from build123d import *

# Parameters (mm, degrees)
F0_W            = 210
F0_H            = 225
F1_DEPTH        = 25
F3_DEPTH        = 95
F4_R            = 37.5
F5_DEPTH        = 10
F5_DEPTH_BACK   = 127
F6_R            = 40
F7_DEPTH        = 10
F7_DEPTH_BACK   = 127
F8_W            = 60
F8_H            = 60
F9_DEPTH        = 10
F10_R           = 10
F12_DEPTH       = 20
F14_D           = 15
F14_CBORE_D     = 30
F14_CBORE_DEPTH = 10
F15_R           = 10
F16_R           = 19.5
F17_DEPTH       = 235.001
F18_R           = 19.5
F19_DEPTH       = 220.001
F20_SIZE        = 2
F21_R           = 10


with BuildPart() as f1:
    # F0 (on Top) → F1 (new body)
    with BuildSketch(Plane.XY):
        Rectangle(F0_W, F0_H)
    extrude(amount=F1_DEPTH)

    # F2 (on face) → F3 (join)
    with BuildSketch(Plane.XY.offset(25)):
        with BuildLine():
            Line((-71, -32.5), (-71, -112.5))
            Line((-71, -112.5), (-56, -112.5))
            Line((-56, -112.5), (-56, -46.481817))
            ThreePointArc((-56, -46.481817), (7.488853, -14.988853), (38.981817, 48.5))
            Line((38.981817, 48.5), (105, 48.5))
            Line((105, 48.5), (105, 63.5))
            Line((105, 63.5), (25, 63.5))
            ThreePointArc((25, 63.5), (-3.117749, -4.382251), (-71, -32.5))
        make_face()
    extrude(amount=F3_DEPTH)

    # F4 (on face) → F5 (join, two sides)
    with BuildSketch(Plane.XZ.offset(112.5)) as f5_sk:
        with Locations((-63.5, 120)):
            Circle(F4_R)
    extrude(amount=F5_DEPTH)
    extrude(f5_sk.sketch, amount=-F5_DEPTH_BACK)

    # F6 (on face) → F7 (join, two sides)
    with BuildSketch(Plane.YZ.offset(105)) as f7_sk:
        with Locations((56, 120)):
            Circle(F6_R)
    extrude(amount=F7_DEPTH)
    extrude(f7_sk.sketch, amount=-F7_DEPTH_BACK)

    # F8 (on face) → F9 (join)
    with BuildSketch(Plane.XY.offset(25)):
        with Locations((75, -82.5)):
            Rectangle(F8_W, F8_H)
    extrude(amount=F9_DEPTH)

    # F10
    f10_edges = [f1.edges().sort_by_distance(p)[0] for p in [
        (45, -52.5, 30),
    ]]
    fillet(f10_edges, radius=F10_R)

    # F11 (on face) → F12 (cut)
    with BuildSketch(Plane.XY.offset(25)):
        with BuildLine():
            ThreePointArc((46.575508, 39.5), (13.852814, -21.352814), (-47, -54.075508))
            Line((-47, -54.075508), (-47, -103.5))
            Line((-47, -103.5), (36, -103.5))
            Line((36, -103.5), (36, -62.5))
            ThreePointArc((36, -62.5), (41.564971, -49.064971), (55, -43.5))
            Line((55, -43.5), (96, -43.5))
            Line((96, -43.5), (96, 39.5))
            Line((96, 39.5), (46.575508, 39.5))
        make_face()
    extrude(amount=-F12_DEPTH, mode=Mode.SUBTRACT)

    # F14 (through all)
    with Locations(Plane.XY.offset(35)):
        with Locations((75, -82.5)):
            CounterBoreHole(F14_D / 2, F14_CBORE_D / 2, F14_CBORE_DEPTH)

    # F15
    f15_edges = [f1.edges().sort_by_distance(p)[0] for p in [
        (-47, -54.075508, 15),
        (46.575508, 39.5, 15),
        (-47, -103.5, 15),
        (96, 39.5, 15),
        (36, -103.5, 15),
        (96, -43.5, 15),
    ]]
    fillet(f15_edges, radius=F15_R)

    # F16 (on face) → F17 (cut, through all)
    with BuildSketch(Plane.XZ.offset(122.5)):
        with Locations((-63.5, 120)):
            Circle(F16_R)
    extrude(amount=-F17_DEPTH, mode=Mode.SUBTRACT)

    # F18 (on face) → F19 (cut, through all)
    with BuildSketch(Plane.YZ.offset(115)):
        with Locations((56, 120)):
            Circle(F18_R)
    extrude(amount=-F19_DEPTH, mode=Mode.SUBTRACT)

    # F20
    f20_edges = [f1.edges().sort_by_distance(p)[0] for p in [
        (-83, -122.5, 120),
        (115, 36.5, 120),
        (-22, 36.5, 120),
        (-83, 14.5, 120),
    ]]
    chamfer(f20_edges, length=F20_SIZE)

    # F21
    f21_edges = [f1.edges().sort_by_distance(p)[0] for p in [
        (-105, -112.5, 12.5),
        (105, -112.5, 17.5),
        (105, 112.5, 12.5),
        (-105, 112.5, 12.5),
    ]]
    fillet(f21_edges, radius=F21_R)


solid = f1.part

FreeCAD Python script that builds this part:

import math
import FreeCAD as App
import Part
import Sketcher
from FreeCAD import Vector
Q = App.Units.Quantity


def edges_at(feature, points):
    """Names of the edges that pass closest to the given points."""
    edges = feature.Shape.Edges
    near = lambda p: min(range(len(edges)), key=lambda i: edges[i].distToShape(Part.Vertex(*p))[0])
    return sorted({f"Edge{near(p) + 1}" for p in points})

doc = App.newDocument("Part")
params = doc.addObject("Spreadsheet::Sheet", "Params")
for row, (alias, value) in enumerate([
    ("sketch1_width", "210 mm"),
    ("sketch1_height", "225 mm"),
    ("pad1_length", "25 mm"),
    ("sketch2_radius", "111 mm"),
    ("sketch2_radius2", "96 mm"),
    ("sketch2_width", "15 mm"),
    ("sketch2_width2", "80 mm"),
    ("pad2_length", "95 mm"),
    ("sketch3_diameter", "75 mm"),
    ("pad3_length", "10 mm"),
    ("pad3_length2", "127 mm"),
    ("sketch4_diameter", "80 mm"),
    ("pad4_length", "10 mm"),
    ("pad4_length2", "127 mm"),
    ("sketch5_width", "60 mm"),
    ("pad5_length", "10 mm"),
    ("fillet_radius", "10 mm"),
    ("sketch6_radius", "120 mm"),
    ("sketch6_radius2", "18.999999 mm"),
    ("sketch6_width", "83 mm"),
    ("sketch6_width2", "41 mm"),
    ("pocket1_length", "20 mm"),
    ("sketch7_diameter", "15 mm"),
    ("hole_diameter", "15 mm"),
    ("hole_cbore_diameter", "30 mm"),
    ("hole_cbore_depth", "10 mm"),
    ("fillet2_radius", "10 mm"),
    ("sketch8_diameter", "39 mm"),
    ("sketch9_diameter", "39 mm"),
    ("chamfer_size", "2 mm"),
    ("fillet3_radius", "10 mm"),
], start=1):
    params.set(f"A{row}", alias)
    params.set(f"B{row}", "=" + value)
    params.setAlias(f"B{row}", alias)

body = doc.addObject("PartDesign::Body", "Body")

sketch1 = body.newObject("Sketcher::SketchObject", "Sketch")
sketch1.AttachmentSupport = (doc.getObject("XY_Plane"), [""])
sketch1.MapMode = "FlatFace"
sketch1.addGeometry([
    Part.LineSegment(Vector(-105, 112.5, 0), Vector(-105, -112.5, 0)),
    Part.LineSegment(Vector(-105, -112.5, 0), Vector(105, -112.5, 0)),
    Part.LineSegment(Vector(105, -112.5, 0), Vector(105, 112.5, 0)),
    Part.LineSegment(Vector(105, 112.5, 0), Vector(-105, 112.5, 0)),
], False)
sketch1.addConstraint([
    Sketcher.Constraint("Coincident", 0, 2, 1, 1),
    Sketcher.Constraint("Coincident", 1, 2, 2, 1),
    Sketcher.Constraint("Coincident", 2, 2, 3, 1),
    Sketcher.Constraint("Coincident", 3, 2, 0, 1),
    Sketcher.Constraint("Vertical", 0),
    Sketcher.Constraint("Horizontal", 1),
    Sketcher.Constraint("Vertical", 2),
    Sketcher.Constraint("Horizontal", 3),
    Sketcher.Constraint("Symmetric", 0, 2, 2, 2, -1, 1),
    Sketcher.Constraint("DistanceX", 1, 1, 1, 2, Q("210 mm")),
    Sketcher.Constraint("DistanceY", 0, 2, 0, 1, Q("225 mm")),
])
sketch1.setExpression("Constraints[9]", "Params.sketch1_width")
sketch1.setExpression("Constraints[10]", "Params.sketch1_height")
pad1 = body.newObject("PartDesign::Pad", "Pad")
pad1.Profile = sketch1
pad1.setExpression("Length", "Params.pad1_length")

sketch2 = body.newObject("Sketcher::SketchObject", "Sketch001")
sketch2.AttachmentSupport = (doc.getObject("XY_Plane"), [""])
sketch2.MapMode = "FlatFace"
sketch2.AttachmentOffset = App.Placement(Vector(0, 0, 25), App.Rotation())
sketch2.addGeometry([
    Part.LineSegment(Vector(-71, -32.5, 0), Vector(-71, -112.5, 0)),
    Part.LineSegment(Vector(-71, -112.5, 0), Vector(-56, -112.5, 0)),
    Part.LineSegment(Vector(-56, -112.5, 0), Vector(-56, -46.481817, 0)),
    Part.ArcOfCircle(Part.Circle(Vector(-71, 63.5, 0), Vector(0, 0, 1), 111), math.radians(-82.233566), math.radians(-7.766434)),
    Part.LineSegment(Vector(38.981817, 48.5, 0), Vector(105, 48.5, 0)),
    Part.LineSegment(Vector(105, 48.5, 0), Vector(105, 63.5, 0)),
    Part.LineSegment(Vector(105, 63.5, 0), Vector(25, 63.5, 0)),
    Part.ArcOfCircle(Part.Circle(Vector(-71, 63.5, 0), Vector(0, 0, 1), 96), math.radians(-90), math.radians(0)),
], False)
sketch2.addConstraint([
    Sketcher.Constraint("Coincident", 0, 2, 1, 1),
    Sketcher.Constraint("Coincident", 1, 2, 2, 1),
    Sketcher.Constraint("Coincident", 2, 2, 3, 1),
    Sketcher.Constraint("Coincident", 3, 2, 4, 1),
    Sketcher.Constraint("Coincident", 4, 2, 5, 1),
    Sketcher.Constraint("Coincident", 5, 2, 6, 1),
    Sketcher.Constraint("Coincident", 6, 2, 7, 2),
    Sketcher.Constraint("Coincident", 7, 1, 0, 1),
    Sketcher.Constraint("Vertical", 0),
    Sketcher.Constraint("Horizontal", 1),
    Sketcher.Constraint("Vertical", 2),
    Sketcher.Constraint("Horizontal", 4),
    Sketcher.Constraint("Vertical", 5),
    Sketcher.Constraint("Horizontal", 6),
    Sketcher.Constraint("Coincident", 7, 3, 3, 3),
    Sketcher.Constraint("Horizontal", 7, 3, 5, 2),
    Sketcher.Constraint("Vertical", 7, 3, 0, 2),
    Sketcher.Constraint("Equal", 6, 0),
    Sketcher.Constraint("Equal", 4, 2),
    Sketcher.Constraint("Radius", 3, Q("111 mm")),
    Sketcher.Constraint("Radius", 7, Q("96 mm")),
    Sketcher.Constraint("DistanceX", 1, 1, 1, 2, Q("15 mm")),
    Sketcher.Constraint("DistanceX", 6, 2, 6, 1, Q("80 mm")),
    Sketcher.Constraint("DistanceX", 3, 3, -1, 1, Q("71 mm")),
    Sketcher.Constraint("DistanceY", -1, 1, 3, 3, Q("63.5 mm")),
])
sketch2.setExpression("Constraints[19]", "Params.sketch2_radius")
sketch2.setExpression("Constraints[20]", "Params.sketch2_radius2")
sketch2.setExpression("Constraints[21]", "Params.sketch2_width")
sketch2.setExpression("Constraints[22]", "Params.sketch2_width2")
pad2 = body.newObject("PartDesign::Pad", "Pad001")
pad2.Profile = sketch2
pad2.setExpression("Length", "Params.pad2_length")

sketch3 = body.newObject("Sketcher::SketchObject", "Sketch002")
sketch3.AttachmentSupport = (doc.getObject("XZ_Plane"), [""])
sketch3.MapMode = "FlatFace"
sketch3.AttachmentOffset = App.Placement(Vector(0, 0, 112.5), App.Rotation())
sketch3.addGeometry(Part.Circle(Vector(-63.5, 120, 0), Vector(0, 0, 1), 37.5), False)
sketch3.addConstraint([
    Sketcher.Constraint("Diameter", 0, Q("75 mm")),
    Sketcher.Constraint("DistanceY", -1, 1, 0, 3, Q("120 mm")),
    Sketcher.Constraint("DistanceX", 0, 3, -1, 1, Q("63.5 mm")),
])
sketch3.setExpression("Constraints[0]", "Params.sketch3_diameter")
pad3 = body.newObject("PartDesign::Pad", "Pad002")
pad3.Profile = sketch3
pad3.Type = "TwoLengths"
pad3.setExpression("Length", "Params.pad3_length")
pad3.setExpression("Length2", "Params.pad3_length2")

sketch4 = body.newObject("Sketcher::SketchObject", "Sketch003")
sketch4.AttachmentSupport = (doc.getObject("YZ_Plane"), [""])
sketch4.MapMode = "FlatFace"
sketch4.AttachmentOffset = App.Placement(Vector(0, 0, 105), App.Rotation())
sketch4.addGeometry(Part.Circle(Vector(56, 120, 0), Vector(0, 0, 1), 40), False)
sketch4.addConstraint([
    Sketcher.Constraint("Diameter", 0, Q("80 mm")),
    Sketcher.Constraint("DistanceX", -1, 1, 0, 3, Q("56 mm")),
    Sketcher.Constraint("DistanceY", -1, 1, 0, 3, Q("120 mm")),
])
sketch4.setExpression("Constraints[0]", "Params.sketch4_diameter")
pad4 = body.newObject("PartDesign::Pad", "Pad003")
pad4.Profile = sketch4
pad4.Type = "TwoLengths"
pad4.setExpression("Length", "Params.pad4_length")
pad4.setExpression("Length2", "Params.pad4_length2")

sketch5 = body.newObject("Sketcher::SketchObject", "Sketch004")
sketch5.AttachmentSupport = (doc.getObject("XY_Plane"), [""])
sketch5.MapMode = "FlatFace"
sketch5.AttachmentOffset = App.Placement(Vector(0, 0, 25), App.Rotation())
sketch5.addGeometry([
    Part.LineSegment(Vector(45, -52.5, 0), Vector(45, -112.5, 0)),
    Part.LineSegment(Vector(45, -112.5, 0), Vector(105, -112.5, 0)),
    Part.LineSegment(Vector(105, -112.5, 0), Vector(105, -52.5, 0)),
    Part.LineSegment(Vector(105, -52.5, 0), Vector(45, -52.5, 0)),
], False)
sketch5.addConstraint([
    Sketcher.Constraint("Coincident", 0, 2, 1, 1),
    Sketcher.Constraint("Coincident", 1, 2, 2, 1),
    Sketcher.Constraint("Coincident", 2, 2, 3, 1),
    Sketcher.Constraint("Coincident", 3, 2, 0, 1),
    Sketcher.Constraint("Vertical", 0),
    Sketcher.Constraint("Horizontal", 1),
    Sketcher.Constraint("Vertical", 2),
    Sketcher.Constraint("Horizontal", 3),
    Sketcher.Constraint("Equal", 3, 0),
    Sketcher.Constraint("DistanceX", 1, 1, 1, 2, Q("60 mm")),
    Sketcher.Constraint("DistanceX", -1, 1, 0, 2, Q("45 mm")),
    Sketcher.Constraint("DistanceY", 0, 2, -1, 1, Q("112.5 mm")),
])
sketch5.setExpression("Constraints[9]", "Params.sketch5_width")
pad5 = body.newObject("PartDesign::Pad", "Pad004")
pad5.Profile = sketch5
pad5.setExpression("Length", "Params.pad5_length")
doc.recompute()

fillet = body.newObject("PartDesign::Fillet", "Fillet")
fillet.Base = (pad5, edges_at(pad5, [(45, -52.5, 30)]))
fillet.setExpression("Radius", "Params.fillet_radius")

sketch6 = body.newObject("Sketcher::SketchObject", "Sketch005")
sketch6.AttachmentSupport = (doc.getObject("XY_Plane"), [""])
sketch6.MapMode = "FlatFace"
sketch6.AttachmentOffset = App.Placement(Vector(0, 0, 25), App.Rotation())
sketch6.addGeometry([
    Part.ArcOfCircle(Part.Circle(Vector(-71, 63.5, 0), Vector(0, 0, 1), 120), math.radians(-78.463041), math.radians(-11.536959)),
    Part.LineSegment(Vector(-47, -54.075508, 0), Vector(-47, -103.5, 0)),
    Part.LineSegment(Vector(-47, -103.5, 0), Vector(36, -103.5, 0)),
    Part.LineSegment(Vector(36, -103.5, 0), Vector(36, -62.5, 0)),
    Part.ArcOfCircle(Part.Circle(Vector(54.999999, -62.499999, 0), Vector(0, 0, 1), 18.999999), math.radians(89.999998), math.radians(180.000002)),
    Part.LineSegment(Vector(55, -43.5, 0), Vector(96, -43.5, 0)),
    Part.LineSegment(Vector(96, -43.5, 0), Vector(96, 39.5, 0)),
    Part.LineSegment(Vector(96, 39.5, 0), Vector(46.575508, 39.5, 0)),
], False)
sketch6.addConstraint([
    Sketcher.Constraint("Coincident", 0, 1, 1, 1),
    Sketcher.Constraint("Coincident", 1, 2, 2, 1),
    Sketcher.Constraint("Coincident", 2, 2, 3, 1),
    Sketcher.Constraint("Tangent", 3, 2, 4, 2),
    Sketcher.Constraint("Tangent", 4, 1, 5, 1),
    Sketcher.Constraint("Coincident", 5, 2, 6, 1),
    Sketcher.Constraint("Coincident", 6, 2, 7, 1),
    Sketcher.Constraint("Coincident", 7, 2, 0, 2),
    Sketcher.Constraint("Vertical", 1),
    Sketcher.Constraint("Horizontal", 2),
    Sketcher.Constraint("Vertical", 3),
    Sketcher.Constraint("Horizontal", 5),
    Sketcher.Constraint("Vertical", 6),
    Sketcher.Constraint("Horizontal", 7),
    Sketcher.Constraint("Equal", 7, 1),
    Sketcher.Constraint("Equal", 5, 3),
    Sketcher.Constraint("Equal", 2, 6),
    Sketcher.Constraint("Radius", 0, Q("120 mm")),
    Sketcher.Constraint("Radius", 4, Q("18.999999 mm")),
    Sketcher.Constraint("DistanceX", 2, 1, 2, 2, Q("83 mm")),
    Sketcher.Constraint("DistanceX", 5, 1, 5, 2, Q("41 mm")),
    Sketcher.Constraint("DistanceX", 0, 3, -1, 1, Q("71 mm")),
    Sketcher.Constraint("DistanceX", -1, 1, 4, 3, Q("54.999999 mm")),
    Sketcher.Constraint("DistanceY", -1, 1, 0, 3, Q("63.5 mm")),
])
sketch6.setExpression("Constraints[17]", "Params.sketch6_radius")
sketch6.setExpression("Constraints[18]", "Params.sketch6_radius2")
sketch6.setExpression("Constraints[19]", "Params.sketch6_width")
sketch6.setExpression("Constraints[20]", "Params.sketch6_width2")
pocket1 = body.newObject("PartDesign::Pocket", "Pocket")
pocket1.Profile = sketch6
pocket1.setExpression("Length", "Params.pocket1_length")

sketch7 = body.newObject("Sketcher::SketchObject", "Sketch006")
sketch7.AttachmentSupport = (doc.getObject("XY_Plane"), [""])
sketch7.MapMode = "FlatFace"
sketch7.AttachmentOffset = App.Placement(Vector(0, 0, 35), App.Rotation())
sketch7.addGeometry(Part.Circle(Vector(75, -82.5, 0), Vector(0, 0, 1), 7.5), False)
sketch7.addConstraint([
    Sketcher.Constraint("Diameter", 0, Q("15 mm")),
    Sketcher.Constraint("DistanceX", -1, 1, 0, 3, Q("75 mm")),
    Sketcher.Constraint("DistanceY", 0, 3, -1, 1, Q("82.5 mm")),
])
sketch7.setExpression("Constraints[0]", "Params.sketch7_diameter")
doc.recompute()
hole = body.newObject("PartDesign::Hole", "Hole")
hole.Profile = sketch7
hole.ThreadType = "None"
hole.setExpression("Diameter", "Params.hole_diameter")
hole.DepthType = "ThroughAll"
hole.HoleCutType = "Counterbore"
hole.setExpression("HoleCutDiameter", "Params.hole_cbore_diameter")
hole.setExpression("HoleCutDepth", "Params.hole_cbore_depth")
doc.recompute()

fillet2 = body.newObject("PartDesign::Fillet", "Fillet001")
fillet2.Base = (hole, edges_at(hole, [
    (-47, -54.076, 15),
    (46.576, 39.5, 15),
    (-47, -103.5, 15),
    (96, 39.5, 15),
    (36, -103.5, 15),
    (96, -43.5, 15),
]))
fillet2.setExpression("Radius", "Params.fillet2_radius")

sketch8 = body.newObject("Sketcher::SketchObject", "Sketch007")
sketch8.AttachmentSupport = (doc.getObject("XZ_Plane"), [""])
sketch8.MapMode = "FlatFace"
sketch8.AttachmentOffset = App.Placement(Vector(0, 0, 122.5), App.Rotation())
sketch8.addGeometry(Part.Circle(Vector(-63.5, 120, 0), Vector(0, 0, 1), 19.5), False)
sketch8.addConstraint([
    Sketcher.Constraint("Diameter", 0, Q("39 mm")),
    Sketcher.Constraint("DistanceY", -1, 1, 0, 3, Q("120 mm")),
    Sketcher.Constraint("DistanceX", 0, 3, -1, 1, Q("63.5 mm")),
])
sketch8.setExpression("Constraints[0]", "Params.sketch8_diameter")
pocket2 = body.newObject("PartDesign::Pocket", "Pocket001")
pocket2.Profile = sketch8
pocket2.Type = "ThroughAll"

sketch9 = body.newObject("Sketcher::SketchObject", "Sketch008")
sketch9.AttachmentSupport = (doc.getObject("YZ_Plane"), [""])
sketch9.MapMode = "FlatFace"
sketch9.AttachmentOffset = App.Placement(Vector(0, 0, 115), App.Rotation())
sketch9.addGeometry(Part.Circle(Vector(56, 120, 0), Vector(0, 0, 1), 19.5), False)
sketch9.addConstraint([
    Sketcher.Constraint("Diameter", 0, Q("39 mm")),
    Sketcher.Constraint("DistanceX", -1, 1, 0, 3, Q("56 mm")),
    Sketcher.Constraint("DistanceY", -1, 1, 0, 3, Q("120 mm")),
])
sketch9.setExpression("Constraints[0]", "Params.sketch9_diameter")
pocket3 = body.newObject("PartDesign::Pocket", "Pocket002")
pocket3.Profile = sketch9
pocket3.Type = "ThroughAll"
doc.recompute()

chamfer = body.newObject("PartDesign::Chamfer", "Chamfer")
chamfer.Base = (pocket3, edges_at(pocket3, [
    (-83, -122.5, 120),
    (115, 36.5, 120),
    (-22, 36.5, 120),
    (-83, 14.5, 120),
]))
chamfer.setExpression("Size", "Params.chamfer_size")
doc.recompute()

fillet3 = body.newObject("PartDesign::Fillet", "Fillet002")
fillet3.Base = (chamfer, edges_at(chamfer, [
    (-105, -112.5, 12.5),
    (105, -112.5, 17.5),
    (105, 112.5, 12.5),
    (-105, 112.5, 12.5),
]))
fillet3.setExpression("Radius", "Params.fillet3_radius")

doc.recompute()
